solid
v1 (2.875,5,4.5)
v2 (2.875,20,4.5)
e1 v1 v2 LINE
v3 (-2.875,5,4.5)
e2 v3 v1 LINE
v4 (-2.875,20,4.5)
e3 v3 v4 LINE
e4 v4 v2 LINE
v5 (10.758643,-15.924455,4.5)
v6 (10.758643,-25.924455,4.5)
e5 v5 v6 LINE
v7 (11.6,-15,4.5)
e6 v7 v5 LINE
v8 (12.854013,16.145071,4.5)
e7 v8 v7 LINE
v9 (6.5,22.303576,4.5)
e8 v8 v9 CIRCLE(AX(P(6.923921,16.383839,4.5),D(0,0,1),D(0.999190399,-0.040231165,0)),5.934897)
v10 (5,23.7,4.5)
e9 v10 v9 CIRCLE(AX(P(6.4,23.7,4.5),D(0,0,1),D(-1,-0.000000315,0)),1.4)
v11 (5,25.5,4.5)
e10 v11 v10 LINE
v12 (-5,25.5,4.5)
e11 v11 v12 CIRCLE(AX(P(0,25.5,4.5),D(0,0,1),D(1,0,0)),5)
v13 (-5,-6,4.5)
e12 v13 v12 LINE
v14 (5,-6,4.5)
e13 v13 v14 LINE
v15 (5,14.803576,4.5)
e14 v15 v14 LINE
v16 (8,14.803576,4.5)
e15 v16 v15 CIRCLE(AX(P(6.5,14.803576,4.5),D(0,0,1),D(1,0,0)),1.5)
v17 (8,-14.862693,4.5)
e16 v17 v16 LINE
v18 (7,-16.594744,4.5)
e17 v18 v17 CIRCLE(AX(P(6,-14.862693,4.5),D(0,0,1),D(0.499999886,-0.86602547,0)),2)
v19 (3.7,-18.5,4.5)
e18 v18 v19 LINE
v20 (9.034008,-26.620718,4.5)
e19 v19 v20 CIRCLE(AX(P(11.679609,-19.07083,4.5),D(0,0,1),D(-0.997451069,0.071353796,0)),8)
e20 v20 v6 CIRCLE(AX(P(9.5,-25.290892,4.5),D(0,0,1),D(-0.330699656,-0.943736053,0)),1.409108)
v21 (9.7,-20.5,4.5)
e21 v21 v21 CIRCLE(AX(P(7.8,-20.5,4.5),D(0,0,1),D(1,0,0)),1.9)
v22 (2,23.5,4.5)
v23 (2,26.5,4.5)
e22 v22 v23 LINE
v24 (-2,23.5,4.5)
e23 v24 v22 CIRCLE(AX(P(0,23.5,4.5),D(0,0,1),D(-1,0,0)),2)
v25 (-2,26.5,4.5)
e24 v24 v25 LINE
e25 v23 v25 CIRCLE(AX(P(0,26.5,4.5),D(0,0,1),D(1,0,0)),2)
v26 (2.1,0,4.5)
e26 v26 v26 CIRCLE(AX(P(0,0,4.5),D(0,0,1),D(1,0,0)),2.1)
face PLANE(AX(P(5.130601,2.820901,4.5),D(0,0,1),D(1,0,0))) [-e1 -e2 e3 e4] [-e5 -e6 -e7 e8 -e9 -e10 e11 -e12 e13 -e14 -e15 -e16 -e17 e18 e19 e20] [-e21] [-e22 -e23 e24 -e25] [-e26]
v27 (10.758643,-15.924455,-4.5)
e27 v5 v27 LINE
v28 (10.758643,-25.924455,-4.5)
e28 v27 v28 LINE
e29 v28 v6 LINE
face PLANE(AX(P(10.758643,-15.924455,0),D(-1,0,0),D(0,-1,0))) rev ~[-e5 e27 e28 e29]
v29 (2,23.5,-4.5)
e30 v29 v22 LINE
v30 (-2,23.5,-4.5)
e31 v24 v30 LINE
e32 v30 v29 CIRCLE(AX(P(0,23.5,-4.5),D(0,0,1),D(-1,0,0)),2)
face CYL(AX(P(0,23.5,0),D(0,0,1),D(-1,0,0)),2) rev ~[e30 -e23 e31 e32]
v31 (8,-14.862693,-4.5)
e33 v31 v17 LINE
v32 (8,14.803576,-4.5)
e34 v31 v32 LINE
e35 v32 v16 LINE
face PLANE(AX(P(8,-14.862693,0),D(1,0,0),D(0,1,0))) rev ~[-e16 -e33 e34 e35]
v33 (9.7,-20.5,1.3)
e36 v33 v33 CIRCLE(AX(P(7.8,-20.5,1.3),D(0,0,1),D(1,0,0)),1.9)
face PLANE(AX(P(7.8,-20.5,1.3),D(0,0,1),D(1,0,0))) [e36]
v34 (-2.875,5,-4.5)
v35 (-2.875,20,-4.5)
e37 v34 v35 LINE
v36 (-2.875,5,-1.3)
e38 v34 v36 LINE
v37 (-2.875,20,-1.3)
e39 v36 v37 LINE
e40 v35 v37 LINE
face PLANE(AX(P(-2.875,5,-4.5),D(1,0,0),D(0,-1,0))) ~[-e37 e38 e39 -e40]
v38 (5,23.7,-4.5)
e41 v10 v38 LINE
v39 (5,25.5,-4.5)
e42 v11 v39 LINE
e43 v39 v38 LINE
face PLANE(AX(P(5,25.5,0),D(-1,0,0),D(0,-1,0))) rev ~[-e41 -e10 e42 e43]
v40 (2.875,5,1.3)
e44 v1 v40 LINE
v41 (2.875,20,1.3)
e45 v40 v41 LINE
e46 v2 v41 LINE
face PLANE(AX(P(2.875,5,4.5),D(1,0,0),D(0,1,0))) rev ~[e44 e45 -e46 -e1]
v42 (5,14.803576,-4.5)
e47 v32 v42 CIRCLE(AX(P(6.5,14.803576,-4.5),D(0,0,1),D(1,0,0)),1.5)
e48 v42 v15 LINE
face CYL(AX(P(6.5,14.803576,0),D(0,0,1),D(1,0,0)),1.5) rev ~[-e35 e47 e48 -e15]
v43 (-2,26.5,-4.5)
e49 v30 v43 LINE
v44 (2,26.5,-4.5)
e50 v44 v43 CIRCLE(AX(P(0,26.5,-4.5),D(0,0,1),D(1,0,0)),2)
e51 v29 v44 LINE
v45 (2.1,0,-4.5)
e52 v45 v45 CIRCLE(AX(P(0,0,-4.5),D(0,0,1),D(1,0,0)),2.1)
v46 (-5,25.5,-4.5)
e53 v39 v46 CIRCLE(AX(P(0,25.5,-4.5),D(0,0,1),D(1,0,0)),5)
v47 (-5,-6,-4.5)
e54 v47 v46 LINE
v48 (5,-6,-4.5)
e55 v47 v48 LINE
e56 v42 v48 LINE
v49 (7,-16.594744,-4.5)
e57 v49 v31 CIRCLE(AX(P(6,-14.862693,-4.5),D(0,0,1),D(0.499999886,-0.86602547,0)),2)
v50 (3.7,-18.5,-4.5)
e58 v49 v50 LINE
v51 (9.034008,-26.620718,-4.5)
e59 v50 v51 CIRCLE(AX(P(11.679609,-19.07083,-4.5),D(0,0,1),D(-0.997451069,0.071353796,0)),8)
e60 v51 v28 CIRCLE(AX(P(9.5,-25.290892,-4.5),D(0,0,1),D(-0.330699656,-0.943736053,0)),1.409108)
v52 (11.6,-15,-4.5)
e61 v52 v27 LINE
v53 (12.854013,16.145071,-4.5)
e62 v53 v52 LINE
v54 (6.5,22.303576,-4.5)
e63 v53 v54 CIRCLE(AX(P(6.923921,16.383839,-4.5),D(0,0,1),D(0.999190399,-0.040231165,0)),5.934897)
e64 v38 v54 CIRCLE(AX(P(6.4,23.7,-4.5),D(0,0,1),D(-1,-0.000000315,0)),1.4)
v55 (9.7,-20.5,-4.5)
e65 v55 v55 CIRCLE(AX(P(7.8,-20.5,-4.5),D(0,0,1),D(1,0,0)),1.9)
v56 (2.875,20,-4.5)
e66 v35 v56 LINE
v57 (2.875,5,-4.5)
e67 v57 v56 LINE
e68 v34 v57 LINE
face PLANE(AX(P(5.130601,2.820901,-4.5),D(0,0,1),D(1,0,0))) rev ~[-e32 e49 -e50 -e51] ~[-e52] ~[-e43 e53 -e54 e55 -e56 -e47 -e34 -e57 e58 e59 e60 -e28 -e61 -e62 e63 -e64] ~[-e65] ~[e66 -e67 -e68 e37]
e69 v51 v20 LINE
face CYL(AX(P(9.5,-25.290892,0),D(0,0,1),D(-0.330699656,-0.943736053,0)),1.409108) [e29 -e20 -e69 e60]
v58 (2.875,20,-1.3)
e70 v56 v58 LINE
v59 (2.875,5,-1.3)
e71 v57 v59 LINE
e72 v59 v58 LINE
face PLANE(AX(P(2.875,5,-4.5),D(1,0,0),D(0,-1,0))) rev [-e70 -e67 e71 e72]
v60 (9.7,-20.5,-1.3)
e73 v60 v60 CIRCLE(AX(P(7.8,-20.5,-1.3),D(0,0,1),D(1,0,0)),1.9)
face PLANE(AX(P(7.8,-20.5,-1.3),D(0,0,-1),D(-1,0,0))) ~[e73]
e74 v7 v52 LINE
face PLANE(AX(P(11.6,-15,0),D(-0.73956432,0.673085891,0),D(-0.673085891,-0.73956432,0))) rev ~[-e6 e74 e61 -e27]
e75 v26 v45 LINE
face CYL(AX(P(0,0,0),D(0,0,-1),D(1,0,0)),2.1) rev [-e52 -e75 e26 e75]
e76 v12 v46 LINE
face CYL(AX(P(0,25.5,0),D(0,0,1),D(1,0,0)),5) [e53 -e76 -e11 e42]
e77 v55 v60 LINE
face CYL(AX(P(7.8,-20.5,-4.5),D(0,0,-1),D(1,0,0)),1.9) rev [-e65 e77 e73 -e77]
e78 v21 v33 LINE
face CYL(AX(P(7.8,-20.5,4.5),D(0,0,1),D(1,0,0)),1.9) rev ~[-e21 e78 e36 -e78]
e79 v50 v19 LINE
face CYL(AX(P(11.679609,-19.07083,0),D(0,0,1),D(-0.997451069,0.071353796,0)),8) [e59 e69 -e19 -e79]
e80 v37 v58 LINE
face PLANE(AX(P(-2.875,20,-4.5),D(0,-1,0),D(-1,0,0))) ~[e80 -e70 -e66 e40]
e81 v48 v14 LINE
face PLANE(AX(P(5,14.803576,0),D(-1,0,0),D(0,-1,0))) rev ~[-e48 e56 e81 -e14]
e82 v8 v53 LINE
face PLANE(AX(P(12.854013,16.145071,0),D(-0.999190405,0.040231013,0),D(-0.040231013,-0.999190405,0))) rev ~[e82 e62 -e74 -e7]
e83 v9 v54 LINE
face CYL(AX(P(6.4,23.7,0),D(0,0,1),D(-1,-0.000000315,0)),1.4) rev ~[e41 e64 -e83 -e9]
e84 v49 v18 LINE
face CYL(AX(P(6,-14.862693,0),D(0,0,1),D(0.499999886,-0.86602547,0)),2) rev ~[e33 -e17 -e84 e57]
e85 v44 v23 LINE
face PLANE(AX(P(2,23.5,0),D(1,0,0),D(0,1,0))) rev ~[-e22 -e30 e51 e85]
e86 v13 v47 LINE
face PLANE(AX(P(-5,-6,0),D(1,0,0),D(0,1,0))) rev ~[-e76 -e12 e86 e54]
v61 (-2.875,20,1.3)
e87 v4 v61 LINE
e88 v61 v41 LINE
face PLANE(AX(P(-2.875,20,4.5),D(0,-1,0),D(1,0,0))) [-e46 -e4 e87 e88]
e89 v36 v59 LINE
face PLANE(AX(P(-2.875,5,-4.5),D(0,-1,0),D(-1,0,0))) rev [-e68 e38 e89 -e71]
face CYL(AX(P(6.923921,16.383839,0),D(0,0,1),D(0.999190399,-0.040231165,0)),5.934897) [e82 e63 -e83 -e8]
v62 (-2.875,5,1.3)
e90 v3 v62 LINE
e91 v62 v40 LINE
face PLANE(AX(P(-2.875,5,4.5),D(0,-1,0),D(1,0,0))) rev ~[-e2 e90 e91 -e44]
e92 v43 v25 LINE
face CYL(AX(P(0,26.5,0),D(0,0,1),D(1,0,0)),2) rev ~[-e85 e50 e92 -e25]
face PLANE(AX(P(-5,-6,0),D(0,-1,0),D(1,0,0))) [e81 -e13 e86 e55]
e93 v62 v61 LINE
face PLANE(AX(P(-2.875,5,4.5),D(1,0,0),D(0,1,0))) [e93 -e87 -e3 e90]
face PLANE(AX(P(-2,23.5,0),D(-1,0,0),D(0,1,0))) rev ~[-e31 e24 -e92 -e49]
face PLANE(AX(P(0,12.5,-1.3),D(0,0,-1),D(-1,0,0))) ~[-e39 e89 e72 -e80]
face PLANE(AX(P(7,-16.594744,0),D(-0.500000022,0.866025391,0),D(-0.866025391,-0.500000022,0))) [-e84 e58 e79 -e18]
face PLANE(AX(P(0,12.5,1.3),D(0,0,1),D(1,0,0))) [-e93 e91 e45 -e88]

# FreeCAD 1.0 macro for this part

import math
import FreeCAD as App
import Part
import Sketcher
from FreeCAD import Vector
Q = App.Units.Quantity

doc = App.newDocument("Part")
body = doc.addObject("PartDesign::Body", "Body")

# Sketch on XY plane
sketch1 = body.newObject("Sketcher::SketchObject", "Sketch")
sketch1.AttachmentSupport = (doc.getObject("XY_Plane"), [""])
sketch1.MapMode = "FlatFace"
sketch1.addGeometry(Part.LineSegment(Vector(-5, -6, 0), Vector(5, -6, 0)), False)
sketch1.addGeometry(Part.LineSegment(Vector(5, -6, 0), Vector(5, 14.8, 0)), False)
sketch1.addGeometry(Part.ArcOfCircle(Part.Circle(Vector(6.5, 14.8, 0), Vector(0, 0, 1), 1.5), math.radians(0), math.radians(180)), False)
sketch1.addGeometry(Part.LineSegment(Vector(8, 14.8, 0), Vector(8, -14.9, 0)), False)
sketch1.addGeometry(Part.ArcOfCircle(Part.Circle(Vector(6, -14.9, 0), Vector(0, 0, 1), 2), math.radians(-60), math.radians(0)), False)
sketch1.addGeometry(Part.LineSegment(Vector(7, -16.6, 0), Vector(3.7, -18.5, 0)), False)
sketch1.addGeometry(Part.ArcOfCircle(Part.Circle(Vector(11.7, -19.1, 0), Vector(0, 0, 1), 8), math.radians(176), math.radians(251)), False)
sketch1.addGeometry(Part.ArcOfCircle(Part.Circle(Vector(9.5, -25.3, 0), Vector(0, 0, 1), 1.4), math.radians(-109), math.radians(-27)), False)
sketch1.addGeometry(Part.LineSegment(Vector(10.8, -25.9, 0), Vector(10.8, -15.9, 0)), False)
sketch1.addGeometry(Part.LineSegment(Vector(10.8, -15.9, 0), Vector(11.6, -15, 0)), False)
sketch1.addGeometry(Part.LineSegment(Vector(11.6, -15, 0), Vector(12.9, 16.1, 0)), False)
sketch1.addGeometry(Part.ArcOfCircle(Part.Circle(Vector(6.9, 16.4, 0), Vector(0, 0, 1), 5.9), math.radians(-2), math.radians(94)), False)
sketch1.addGeometry(Part.ArcOfCircle(Part.Circle(Vector(6.4, 23.7, 0), Vector(0, 0, 1), 1.4), math.radians(-180), math.radians(-86)), False)
sketch1.addGeometry(Part.LineSegment(Vector(5, 23.7, 0), Vector(5, 25.5, 0)), False)
sketch1.addGeometry(Part.ArcOfCircle(Part.Circle(Vector(0, 25.5, 0), Vector(0, 0, 1), 5), math.radians(0), math.radians(180)), False)
sketch1.addGeometry(Part.LineSegment(Vector(-5, 25.5, 0), Vector(-5, -6, 0)), False)
sketch1.addGeometry(Part.Circle(Vector(0, 0, 0), Vector(0, 0, 1), 2.1), False)
sketch1.addGeometry(Part.ArcOfCircle(Part.Circle(Vector(0, 23.5, 0), Vector(0, 0, 1), 2), math.radians(180), math.radians(360)), False)
sketch1.addGeometry(Part.LineSegment(Vector(-2, 23.5, 0), Vector(-2, 26.5, 0)), False)
sketch1.addGeometry(Part.ArcOfCircle(Part.Circle(Vector(0, 26.5, 0), Vector(0, 0, 1), 2), math.radians(0), math.radians(180)), False)
sketch1.addGeometry(Part.LineSegment(Vector(2, 26.5, 0), Vector(2, 23.5, 0)), False)
sketch1.addConstraint(Sketcher.Constraint("Coincident", 0, 2, 1, 1))
sketch1.addConstraint(Sketcher.Constraint("Tangent", 1, 2, 2, 2))
sketch1.addConstraint(Sketcher.Constraint("Tangent", 2, 1, 3, 1))
sketch1.addConstraint(Sketcher.Constraint("Tangent", 3, 2, 4, 2))
sketch1.addConstraint(Sketcher.Constraint("Tangent", 4, 1, 5, 1))
sketch1.addConstraint(Sketcher.Constraint("Coincident", 5, 2, 6, 1))
sketch1.addConstraint(Sketcher.Constraint("Tangent", 6, 2, 7, 1))
sketch1.addConstraint(Sketcher.Constraint("Coincident", 7, 2, 8, 1))
sketch1.addConstraint(Sketcher.Constraint("Coincident", 8, 2, 9, 1))
sketch1.addConstraint(Sketcher.Constraint("Coincident", 9, 2, 10, 1))
sketch1.addConstraint(Sketcher.Constraint("Tangent", 10, 2, 11, 1))
sketch1.addConstraint(Sketcher.Constraint("Tangent", 11, 2, 12, 2))
sketch1.addConstraint(Sketcher.Constraint("Tangent", 12, 1, 13, 1))
sketch1.addConstraint(Sketcher.Constraint("Tangent", 13, 2, 14, 1))
sketch1.addConstraint(Sketcher.Constraint("Tangent", 14, 2, 15, 1))
sketch1.addConstraint(Sketcher.Constraint("Coincident", 15, 2, 0, 1))
sketch1.addConstraint(Sketcher.Constraint("Tangent", 17, 1, 18, 1))
sketch1.addConstraint(Sketcher.Constraint("Tangent", 18, 2, 19, 2))
sketch1.addConstraint(Sketcher.Constraint("Tangent", 19, 1, 20, 1))
sketch1.addConstraint(Sketcher.Constraint("Tangent", 20, 2, 17, 2))
sketch1.addConstraint(Sketcher.Constraint("Horizontal", 0))
sketch1.addConstraint(Sketcher.Constraint("Vertical", 1))
sketch1.addConstraint(Sketcher.Constraint("Vertical", 3))
sketch1.addConstraint(Sketcher.Constraint("Vertical", 8))
sketch1.addConstraint(Sketcher.Constraint("Vertical", 13))
sketch1.addConstraint(Sketcher.Constraint("Vertical", 15))
sketch1.addConstraint(Sketcher.Constraint("Vertical", 18))
sketch1.addConstraint(Sketcher.Constraint("Vertical", 20))
sketch1.addConstraint(Sketcher.Constraint("Coincident", 16, 3, -1, 1))
sketch1.addConstraint(Sketcher.Constraint("Equal", 4, 17))
sketch1.addConstraint(Sketcher.Constraint("PointOnObject", 14, 3, -2))
sketch1.addConstraint(Sketcher.Constraint("PointOnObject", 17, 3, -2))
sketch1.addConstraint(Sketcher.Constraint("Vertical", 2, 3, 11, 2))
sketch1.addConstraint(Sketcher.Constraint("Vertical", 1, 2, 12, 1))
sketch1.addConstraint(Sketcher.Constraint("Equal", 0, 8))
sketch1.addConstraint(Sketcher.Constraint("Radius", 4, 2.0))
sketch1.addConstraint(Sketcher.Constraint("Radius", 6, 8.0))
sketch1.addConstraint(Sketcher.Constraint("Radius", 14, 5.0))
sketch1.addConstraint(Sketcher.Constraint("Diameter", 16, 4.2))
sketch1.addConstraint(Sketcher.Constraint("Radius", 2, 1.5))
sketch1.addConstraint(Sketcher.Constraint("Radius", 12, 1.4))
sketch1.addConstraint(Sketcher.Constraint("DistanceY", 18, 1, 18, 2, 3.0))
sketch1.addConstraint(Sketcher.Constraint("Angle", 5, Q("-149.999999 deg")))
sketch1.addConstraint(Sketcher.Constraint("DistanceY", 13, 1, 13, 2, 1.8))
sketch1.addConstraint(Sketcher.Constraint("DistanceY", 15, 2, 15, 1, 31.5))
sketch1.addConstraint(Sketcher.Constraint("DistanceY", 0, 2, -1, 1, 6.0))
sketch1.addConstraint(Sketcher.Constraint("DistanceY", 9, 2, -1, 1, 15.0))
sketch1.addConstraint(Sketcher.Constraint("DistanceX", 2, 3, 7, 3, 3.0))
sketch1.addConstraint(Sketcher.Constraint("DistanceY", 17, 3, 14, 3, 2.0))
sketch1.addConstraint(Sketcher.Constraint("DistanceX", -1, 1, 5, 2, 3.7))
sketch1.addConstraint(Sketcher.Constraint("DistanceY", 5, 2, -1, 1, 18.5))
sketch1.addConstraint(Sketcher.Constraint("DistanceX", -1, 1, 9, 2, 11.6))
sketch1.addConstraint(Sketcher.Constraint("DistanceY", 2, 3, 11, 2, 7.5))
sketch1.addConstraint(Sketcher.Constraint("Distance", 9, 1.249999))
sketch1.addConstraint(Sketcher.Constraint("Radius", 7, 1.409108))
sketch1.addConstraint(Sketcher.Constraint("Radius", 11, 5.934897))
sketch1.addConstraint(Sketcher.Constraint("DistanceY", 7, 3, 4, 3, 10.428198))
pad1 = body.newObject("PartDesign::Pad", "Pad")
pad1.Profile = sketch1
pad1.Length = 9
pad1.Midplane = True

# Sketch on XY plane
sketch2 = body.newObject("Sketcher::SketchObject", "Sketch001")
sketch2.AttachmentSupport = (doc.getObject("XY_Plane"), [""])
sketch2.MapMode = "FlatFace"
sketch2.AttachmentOffset = App.Placement(Vector(0, 0, 4.5), App.Rotation())
sketch2.addGeometry(Part.Circle(Vector(7.8, -20.5, 0), Vector(0, 0, 1), 1.9), False)
sketch2.addGeometry(Part.LineSegment(Vector(-2.9, 20, 0), Vector(-2.9, 5, 0)), False)
sketch2.addGeometry(Part.LineSegment(Vector(-2.9, 5, 0), Vector(2.9, 5, 0)), False)
sketch2.addGeometry(Part.LineSegment(Vector(2.9, 5, 0), Vector(2.9, 20, 0)), False)
sketch2.addGeometry(Part.LineSegment(Vector(2.9, 20, 0), Vector(-2.9, 20, 0)), False)
sketch2.addConstraint(Sketcher.Constraint("Coincident", 1, 2, 2, 1))
sketch2.addConstraint(Sketcher.Constraint("Coincident", 2, 2, 3, 1))
sketch2.addConstraint(Sketcher.Constraint("Coincident", 3, 2, 4, 1))
sketch2.addConstraint(Sketcher.Constraint("Coincident", 4, 2, 1, 1))
sketch2.addConstraint(Sketcher.Constraint("Vertical", 1))
sketch2.addConstraint(Sketcher.Constraint("Horizontal", 2))
sketch2.addConstraint(Sketcher.Constraint("Vertical", 3))
sketch2.addConstraint(Sketcher.Constraint("Horizontal", 4))
sketch2.addConstraint(Sketcher.Constraint("Diameter", 0, 3.8))
sketch2.addConstraint(Sketcher.Constraint("DistanceY", 1, 2, 1, 1, 15.0))
sketch2.addConstraint(Sketcher.Constraint("DistanceY", -1, 1, 1, 2, 5.0))
sketch2.addConstraint(Sketcher.Constraint("DistanceX", 2, 1, 2, 2, 5.75))
sketch2.addConstraint(Sketcher.Constraint("DistanceX", -1, 1, 0, 3, 7.8))
sketch2.addConstraint(Sketcher.Constraint("DistanceY", 0, 3, -1, 1, 20.5))
sketch2.addConstraint(Sketcher.Constraint("DistanceX", 1, 2, -1, 1, 2.875))
pocket1 = body.newObject("PartDesign::Pocket", "Pocket")
pocket1.Profile = sketch2
pocket1.Length = 3.2
doc.recompute()

mirrored = body.newObject("PartDesign::Mirrored", "Mirrored")
mirrored.Originals = [pocket1]
mirrored.MirrorPlane = (doc.getObject("XY_Plane"), [""])
body.Tip = mirrored

doc.recompute()
